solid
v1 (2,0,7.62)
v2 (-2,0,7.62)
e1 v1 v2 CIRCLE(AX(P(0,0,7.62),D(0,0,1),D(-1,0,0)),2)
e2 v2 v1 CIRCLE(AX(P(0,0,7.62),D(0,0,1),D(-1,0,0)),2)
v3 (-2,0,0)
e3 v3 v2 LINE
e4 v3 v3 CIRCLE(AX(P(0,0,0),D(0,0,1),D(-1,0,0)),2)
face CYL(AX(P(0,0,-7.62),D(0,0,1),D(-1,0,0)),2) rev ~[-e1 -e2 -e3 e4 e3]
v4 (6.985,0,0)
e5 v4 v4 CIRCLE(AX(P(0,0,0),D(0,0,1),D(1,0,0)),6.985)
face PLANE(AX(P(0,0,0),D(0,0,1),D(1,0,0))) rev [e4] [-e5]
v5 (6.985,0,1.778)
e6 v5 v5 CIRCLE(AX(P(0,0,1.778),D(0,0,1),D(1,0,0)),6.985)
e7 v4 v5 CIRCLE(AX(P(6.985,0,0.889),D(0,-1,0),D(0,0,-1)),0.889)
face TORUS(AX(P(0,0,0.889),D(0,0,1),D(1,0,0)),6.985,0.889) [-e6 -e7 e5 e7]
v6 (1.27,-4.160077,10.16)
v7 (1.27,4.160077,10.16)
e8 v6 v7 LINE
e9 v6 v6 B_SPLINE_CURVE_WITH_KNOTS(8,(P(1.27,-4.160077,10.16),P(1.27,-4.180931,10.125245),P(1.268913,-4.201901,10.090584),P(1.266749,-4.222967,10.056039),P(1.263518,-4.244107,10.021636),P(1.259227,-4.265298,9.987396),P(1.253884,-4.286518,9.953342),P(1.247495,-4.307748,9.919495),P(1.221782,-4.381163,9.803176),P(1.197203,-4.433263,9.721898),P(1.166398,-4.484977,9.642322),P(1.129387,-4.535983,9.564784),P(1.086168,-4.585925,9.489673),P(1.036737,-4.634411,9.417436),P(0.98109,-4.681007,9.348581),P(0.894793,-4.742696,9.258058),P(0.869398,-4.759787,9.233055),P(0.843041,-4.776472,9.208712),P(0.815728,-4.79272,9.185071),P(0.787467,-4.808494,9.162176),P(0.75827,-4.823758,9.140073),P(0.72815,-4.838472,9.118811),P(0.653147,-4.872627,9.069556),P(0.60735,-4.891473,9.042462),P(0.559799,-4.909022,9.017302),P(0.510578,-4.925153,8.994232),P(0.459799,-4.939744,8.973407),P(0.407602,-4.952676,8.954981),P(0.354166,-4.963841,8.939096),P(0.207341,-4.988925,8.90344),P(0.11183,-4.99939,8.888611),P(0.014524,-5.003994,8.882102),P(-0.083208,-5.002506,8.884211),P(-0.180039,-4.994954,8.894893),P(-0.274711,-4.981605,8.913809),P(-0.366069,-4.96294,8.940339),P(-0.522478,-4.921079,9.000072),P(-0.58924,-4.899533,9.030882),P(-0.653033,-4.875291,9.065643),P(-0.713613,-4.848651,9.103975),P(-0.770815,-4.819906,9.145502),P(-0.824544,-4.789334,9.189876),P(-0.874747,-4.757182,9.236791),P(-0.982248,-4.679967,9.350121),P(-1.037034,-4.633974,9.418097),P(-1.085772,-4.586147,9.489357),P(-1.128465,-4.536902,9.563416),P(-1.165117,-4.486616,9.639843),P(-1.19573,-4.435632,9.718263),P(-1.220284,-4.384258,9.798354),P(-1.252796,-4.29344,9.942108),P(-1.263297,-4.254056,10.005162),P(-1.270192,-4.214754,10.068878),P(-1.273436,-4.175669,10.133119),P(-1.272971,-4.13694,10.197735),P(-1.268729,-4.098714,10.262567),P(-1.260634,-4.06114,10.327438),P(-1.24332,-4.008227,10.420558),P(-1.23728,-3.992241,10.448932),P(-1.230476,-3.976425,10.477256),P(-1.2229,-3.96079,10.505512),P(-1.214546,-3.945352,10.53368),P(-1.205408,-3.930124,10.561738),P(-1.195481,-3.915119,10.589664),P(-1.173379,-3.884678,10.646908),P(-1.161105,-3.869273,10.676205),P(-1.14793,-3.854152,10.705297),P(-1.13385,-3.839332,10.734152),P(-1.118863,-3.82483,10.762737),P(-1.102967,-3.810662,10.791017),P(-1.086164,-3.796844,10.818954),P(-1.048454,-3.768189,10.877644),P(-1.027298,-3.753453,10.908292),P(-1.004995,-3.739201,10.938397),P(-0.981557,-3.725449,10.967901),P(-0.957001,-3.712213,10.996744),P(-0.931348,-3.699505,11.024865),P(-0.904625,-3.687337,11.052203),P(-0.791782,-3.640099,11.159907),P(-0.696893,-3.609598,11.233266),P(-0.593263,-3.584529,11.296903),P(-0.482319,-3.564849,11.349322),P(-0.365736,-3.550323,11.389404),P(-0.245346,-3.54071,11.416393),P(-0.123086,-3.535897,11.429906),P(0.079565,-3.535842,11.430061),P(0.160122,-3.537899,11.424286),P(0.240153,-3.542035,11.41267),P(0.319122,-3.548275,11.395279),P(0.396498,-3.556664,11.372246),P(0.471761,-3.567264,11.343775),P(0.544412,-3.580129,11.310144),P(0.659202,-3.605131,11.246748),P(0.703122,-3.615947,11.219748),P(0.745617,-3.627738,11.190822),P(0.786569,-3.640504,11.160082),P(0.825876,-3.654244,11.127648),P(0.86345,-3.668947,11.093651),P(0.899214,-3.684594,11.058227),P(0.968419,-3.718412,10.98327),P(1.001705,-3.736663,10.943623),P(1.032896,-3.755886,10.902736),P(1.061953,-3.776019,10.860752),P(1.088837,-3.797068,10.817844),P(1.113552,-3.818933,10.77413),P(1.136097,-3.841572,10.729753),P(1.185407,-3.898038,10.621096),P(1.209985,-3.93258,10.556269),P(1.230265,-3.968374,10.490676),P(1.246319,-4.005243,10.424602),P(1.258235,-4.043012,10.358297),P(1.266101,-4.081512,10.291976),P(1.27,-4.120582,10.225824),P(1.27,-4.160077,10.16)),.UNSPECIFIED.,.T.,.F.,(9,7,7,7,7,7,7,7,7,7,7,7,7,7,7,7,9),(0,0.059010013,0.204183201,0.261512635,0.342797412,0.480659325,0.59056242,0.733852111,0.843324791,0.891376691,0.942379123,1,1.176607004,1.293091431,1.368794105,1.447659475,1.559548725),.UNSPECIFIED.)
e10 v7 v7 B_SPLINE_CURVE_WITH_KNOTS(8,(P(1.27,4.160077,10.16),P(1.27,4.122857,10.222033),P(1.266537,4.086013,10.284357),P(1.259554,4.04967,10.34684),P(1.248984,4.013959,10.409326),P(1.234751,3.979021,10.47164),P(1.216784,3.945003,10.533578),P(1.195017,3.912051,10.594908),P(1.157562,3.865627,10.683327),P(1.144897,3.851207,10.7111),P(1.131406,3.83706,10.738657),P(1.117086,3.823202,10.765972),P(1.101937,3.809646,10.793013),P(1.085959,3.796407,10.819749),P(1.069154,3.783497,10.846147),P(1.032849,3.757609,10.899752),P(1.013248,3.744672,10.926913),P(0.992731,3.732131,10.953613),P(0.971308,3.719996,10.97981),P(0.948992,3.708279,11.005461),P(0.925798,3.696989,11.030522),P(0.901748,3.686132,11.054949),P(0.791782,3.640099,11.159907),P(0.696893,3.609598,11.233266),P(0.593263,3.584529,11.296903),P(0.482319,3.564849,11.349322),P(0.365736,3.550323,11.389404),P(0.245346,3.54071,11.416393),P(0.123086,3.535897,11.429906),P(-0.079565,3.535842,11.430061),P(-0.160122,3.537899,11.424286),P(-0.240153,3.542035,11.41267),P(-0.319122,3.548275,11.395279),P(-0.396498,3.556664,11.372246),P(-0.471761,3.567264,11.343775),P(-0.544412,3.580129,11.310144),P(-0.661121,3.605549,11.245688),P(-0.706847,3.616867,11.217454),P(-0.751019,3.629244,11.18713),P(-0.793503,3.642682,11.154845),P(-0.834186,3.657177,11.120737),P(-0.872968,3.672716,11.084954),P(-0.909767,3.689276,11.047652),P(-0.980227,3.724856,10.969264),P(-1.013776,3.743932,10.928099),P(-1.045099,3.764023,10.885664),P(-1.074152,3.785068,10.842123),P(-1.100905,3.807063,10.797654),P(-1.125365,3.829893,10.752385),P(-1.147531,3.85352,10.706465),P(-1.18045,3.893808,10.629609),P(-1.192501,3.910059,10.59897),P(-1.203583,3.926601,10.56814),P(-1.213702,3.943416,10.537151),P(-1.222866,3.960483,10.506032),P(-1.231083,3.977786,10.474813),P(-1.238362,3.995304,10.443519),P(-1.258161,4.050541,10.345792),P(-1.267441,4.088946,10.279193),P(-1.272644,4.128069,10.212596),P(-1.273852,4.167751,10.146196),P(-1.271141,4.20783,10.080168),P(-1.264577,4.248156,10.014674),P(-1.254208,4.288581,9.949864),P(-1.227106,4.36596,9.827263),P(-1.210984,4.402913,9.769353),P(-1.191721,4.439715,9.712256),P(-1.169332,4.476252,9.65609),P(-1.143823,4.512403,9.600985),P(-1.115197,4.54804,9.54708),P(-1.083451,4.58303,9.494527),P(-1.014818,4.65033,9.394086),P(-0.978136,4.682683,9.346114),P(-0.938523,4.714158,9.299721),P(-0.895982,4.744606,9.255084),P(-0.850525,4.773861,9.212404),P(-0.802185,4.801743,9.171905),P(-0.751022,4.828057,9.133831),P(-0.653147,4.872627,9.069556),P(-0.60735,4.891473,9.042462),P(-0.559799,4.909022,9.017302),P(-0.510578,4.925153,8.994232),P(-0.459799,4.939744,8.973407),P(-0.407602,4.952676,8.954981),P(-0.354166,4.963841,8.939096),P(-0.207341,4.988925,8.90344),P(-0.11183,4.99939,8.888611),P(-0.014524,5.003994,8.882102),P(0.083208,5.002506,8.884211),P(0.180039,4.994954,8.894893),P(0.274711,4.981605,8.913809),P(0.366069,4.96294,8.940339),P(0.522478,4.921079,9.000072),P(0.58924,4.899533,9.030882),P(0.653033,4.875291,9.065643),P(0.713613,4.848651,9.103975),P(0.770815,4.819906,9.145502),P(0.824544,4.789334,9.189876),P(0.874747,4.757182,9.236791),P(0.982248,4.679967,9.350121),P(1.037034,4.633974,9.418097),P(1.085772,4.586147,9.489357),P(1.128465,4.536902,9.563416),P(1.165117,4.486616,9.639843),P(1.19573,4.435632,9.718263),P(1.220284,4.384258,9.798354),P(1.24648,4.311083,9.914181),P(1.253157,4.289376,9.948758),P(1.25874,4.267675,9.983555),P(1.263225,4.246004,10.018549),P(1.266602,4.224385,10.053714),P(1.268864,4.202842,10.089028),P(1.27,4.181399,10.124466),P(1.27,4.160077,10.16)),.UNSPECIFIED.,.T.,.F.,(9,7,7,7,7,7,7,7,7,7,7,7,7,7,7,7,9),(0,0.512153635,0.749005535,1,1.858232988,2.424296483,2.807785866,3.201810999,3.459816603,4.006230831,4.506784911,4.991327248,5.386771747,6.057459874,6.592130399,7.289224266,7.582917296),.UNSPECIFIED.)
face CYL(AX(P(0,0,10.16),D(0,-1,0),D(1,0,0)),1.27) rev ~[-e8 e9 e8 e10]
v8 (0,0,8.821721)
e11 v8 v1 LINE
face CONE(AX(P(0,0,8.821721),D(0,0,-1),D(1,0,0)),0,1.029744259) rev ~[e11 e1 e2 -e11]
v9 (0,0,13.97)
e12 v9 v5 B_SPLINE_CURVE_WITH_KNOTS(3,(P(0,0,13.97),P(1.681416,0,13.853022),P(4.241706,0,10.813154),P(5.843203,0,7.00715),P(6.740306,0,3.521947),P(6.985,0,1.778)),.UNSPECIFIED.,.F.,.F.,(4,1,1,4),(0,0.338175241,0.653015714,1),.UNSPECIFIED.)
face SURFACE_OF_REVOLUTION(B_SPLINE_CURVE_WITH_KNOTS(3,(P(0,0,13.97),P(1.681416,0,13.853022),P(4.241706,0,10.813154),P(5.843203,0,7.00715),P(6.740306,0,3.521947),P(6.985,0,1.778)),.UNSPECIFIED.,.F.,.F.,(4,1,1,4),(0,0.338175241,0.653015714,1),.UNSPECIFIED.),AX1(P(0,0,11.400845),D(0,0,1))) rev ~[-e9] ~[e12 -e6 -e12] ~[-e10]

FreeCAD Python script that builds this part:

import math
import FreeCAD as App
import Part
import Sketcher
Q = App.Units.Quantity

doc = App.newDocument("Part")
body = doc.addObject("PartDesign::Body", "Body")

sketch1 = body.newObject("Sketcher::SketchObject", "Sketch")
sketch1.AttachmentSupport = (doc.getObject("XZ_Plane"), [""])
sketch1.MapMode = "FlatFace"
sketch1.addGeometry([
    Part.LineSegment(App.Vector(0, 13.97, 0), App.Vector(0, 0, 0)),
    Part.LineSegment(App.Vector(0, 0, 0), App.Vector(6.985, 0, 0)),
    Part.ArcOfCircle(Part.Circle(App.Vector(6.985, 0.889, 0), App.Vector(0, 0, 1), 0.889), math.radians(-90), math.radians(90)),
    Part.BSplineCurve([App.Vector(0, 13.97, 0), App.Vector(1.681416, 13.853022, 0), App.Vector(4.241706, 10.813154, 0), App.Vector(5.843203, 7.00715, 0), App.Vector(6.740306, 3.521947, 0), App.Vector(6.985, 1.778, 0)], [4, 1, 1, 4], [0, 0.338175241, 0.653015714, 1], False, 3, [1, 1, 1, 1, 1, 1], False),
], False)
sketch1.addConstraint([
    Sketcher.Constraint("Block", 3),
    Sketcher.Constraint("Coincident", 0, 2, 1, 1),
    Sketcher.Constraint("Tangent", 1, 2, 2, 1),
    Sketcher.Constraint("Coincident", 2, 2, 3, 2),
    Sketcher.Constraint("Coincident", 3, 1, 0, 1),
    Sketcher.Constraint("Vertical", 0),
    Sketcher.Constraint("Horizontal", 1),
    Sketcher.Constraint("PointOnObject", 1, 2, -1),
    Sketcher.Constraint("Vertical", 1, 2, 2, 2),
])
revolution = body.newObject("PartDesign::Revolution", "Revolution")
revolution.Profile = sketch1
revolution.ReferenceAxis = (sketch1, ["V_Axis"])
revolution.Angle = 360

sketch2 = body.newObject("Sketcher::SketchObject", "Sketch001")
sketch2.AttachmentSupport = (doc.getObject("XZ_Plane"), [""])
sketch2.MapMode = "FlatFace"
sketch2.addGeometry(Part.Circle(App.Vector(0, 10.2, 0), App.Vector(0, 0, 1), 1.3), False)
sketch2.addConstraint([
    Sketcher.Constraint("PointOnObject", 0, 3, -2),
    Sketcher.Constraint("Diameter", 0, Q("0.1 in")),
    Sketcher.Constraint("DistanceY", -1, 1, 0, 3, Q("0.4 in")),
])
pocket1 = body.newObject("PartDesign::Pocket", "Pocket")
pocket1.Profile = sketch2
pocket1.Type = "ThroughAll"
pocket1.Midplane = True

sketch3 = body.newObject("Sketcher::SketchObject", "Sketch002")
sketch3.AttachmentSupport = (doc.getObject("XY_Plane"), [""])
sketch3.MapMode = "FlatFace"
sketch3.addGeometry(Part.Circle(App.Vector(0, 0, 0), App.Vector(0, 0, 1), 2), False)
sketch3.addConstraint([
    Sketcher.Constraint("Coincident", 0, 3, -1, 1),
    Sketcher.Constraint("Diameter", 0, Q("4 mm")),
])
doc.recompute()
hole = body.newObject("PartDesign::Hole", "Hole")
hole.Profile = sketch3
hole.ThreadType = "None"
hole.Diameter = 4
hole.DepthType = "Dimension"
hole.Depth = Q("0.3 in")
hole.DrillPoint = "Angled"
hole.DrillPointAngle = 118
hole.Reversed = True

doc.recompute()
